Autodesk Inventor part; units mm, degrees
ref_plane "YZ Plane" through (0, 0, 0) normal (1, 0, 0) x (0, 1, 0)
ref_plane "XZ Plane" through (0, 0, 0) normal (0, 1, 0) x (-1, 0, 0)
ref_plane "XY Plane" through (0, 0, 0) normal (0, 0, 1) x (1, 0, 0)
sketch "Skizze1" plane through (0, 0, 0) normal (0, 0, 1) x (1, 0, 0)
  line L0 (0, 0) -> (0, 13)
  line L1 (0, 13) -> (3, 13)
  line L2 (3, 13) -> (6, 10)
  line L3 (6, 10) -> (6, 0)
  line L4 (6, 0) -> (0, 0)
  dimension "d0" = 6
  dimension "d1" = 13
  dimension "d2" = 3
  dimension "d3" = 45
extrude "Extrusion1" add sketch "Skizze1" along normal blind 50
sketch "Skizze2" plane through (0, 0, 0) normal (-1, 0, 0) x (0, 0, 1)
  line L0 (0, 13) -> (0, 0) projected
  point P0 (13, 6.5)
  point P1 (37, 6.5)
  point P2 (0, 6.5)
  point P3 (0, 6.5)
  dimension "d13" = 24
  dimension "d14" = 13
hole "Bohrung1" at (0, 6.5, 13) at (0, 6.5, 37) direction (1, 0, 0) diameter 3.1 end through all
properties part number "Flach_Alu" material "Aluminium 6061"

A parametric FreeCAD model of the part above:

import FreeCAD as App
import Part
import Sketcher
from FreeCAD import Vector

doc = App.newDocument("Part")
body = doc.addObject("PartDesign::Body", "Body")

# Sketch on XY plane
sketch1 = doc.addObject("Sketcher::SketchObject", "Sketch")
body.addObject(sketch1)
sketch1.AttachmentSupport = (doc.XY_Plane, [""])
sketch1.MapMode = "FlatFace"
sketch1.addGeometry([
    Part.LineSegment(Vector(0, 13, 0), Vector(0, 0, 0)),  # 0
    Part.LineSegment(Vector(0, 0, 0), Vector(6, 0, 0)),  # 1
    Part.LineSegment(Vector(6, 0, 0), Vector(6, 10, 0)),  # 2
    Part.LineSegment(Vector(6, 10, 0), Vector(3, 13, 0)),  # 3
    Part.LineSegment(Vector(3, 13, 0), Vector(0, 13, 0)),  # 4
], False)
sketch1.addConstraint([
    Sketcher.Constraint("Coincident", 0, 2, 1, 1),
    Sketcher.Constraint("Coincident", 1, 2, 2, 1),
    Sketcher.Constraint("Coincident", 2, 2, 3, 1),
    Sketcher.Constraint("Coincident", 3, 2, 4, 1),
    Sketcher.Constraint("Coincident", 4, 2, 0, 1),
    Sketcher.Constraint("Vertical", 0),
    Sketcher.Constraint("Horizontal", 1),
    Sketcher.Constraint("Vertical", 2),
    Sketcher.Constraint("Horizontal", 4),
    Sketcher.Constraint("Coincident", 0, 2, -1, 1),
    Sketcher.Constraint("DistanceX", 1, 1, 1, 2, 6.0),
    Sketcher.Constraint("DistanceX", 4, 2, 4, 1, 3.0),
    Sketcher.Constraint("DistanceY", 0, 2, 0, 1, 13.0),
    Sketcher.Constraint("DistanceY", 2, 2, 3, 2, 3.0),
])
pad1 = doc.addObject("PartDesign::Pad", "Pad")
body.addObject(pad1)
pad1.Profile = sketch1
pad1.Length = 50

# Sketch on YZ plane
sketch2 = doc.addObject("Sketcher::SketchObject", "Sketch001")
body.addObject(sketch2)
sketch2.AttachmentSupport = (doc.YZ_Plane, [""])
sketch2.MapMode = "FlatFace"
sketch2.addGeometry([
    Part.Circle(Vector(6.5, 13, 0), Vector(0, 0, 1), 1.55),
    Part.Circle(Vector(6.5, 37, 0), Vector(0, 0, 1), 1.55),
], False)
sketch2.addConstraint([
    Sketcher.Constraint("Equal", 0, 1),
    Sketcher.Constraint("Vertical", 0, 3, 1, 3),
    Sketcher.Constraint("Diameter", 0, 3.1),
    Sketcher.Constraint("DistanceY", -1, 1, 0, 3, 13.0),
    Sketcher.Constraint("DistanceY", -1, 1, 1, 3, 37.0),
    Sketcher.Constraint("DistanceX", -1, 1, 0, 3, 6.5),
])
doc.recompute()
hole = doc.addObject("PartDesign::Hole", "Hole")
body.addObject(hole)
hole.Profile = sketch2
hole.ThreadType = "None"
hole.Diameter = 3.1
hole.DepthType = "ThroughAll"
hole.Reversed = True

doc.recompute()
